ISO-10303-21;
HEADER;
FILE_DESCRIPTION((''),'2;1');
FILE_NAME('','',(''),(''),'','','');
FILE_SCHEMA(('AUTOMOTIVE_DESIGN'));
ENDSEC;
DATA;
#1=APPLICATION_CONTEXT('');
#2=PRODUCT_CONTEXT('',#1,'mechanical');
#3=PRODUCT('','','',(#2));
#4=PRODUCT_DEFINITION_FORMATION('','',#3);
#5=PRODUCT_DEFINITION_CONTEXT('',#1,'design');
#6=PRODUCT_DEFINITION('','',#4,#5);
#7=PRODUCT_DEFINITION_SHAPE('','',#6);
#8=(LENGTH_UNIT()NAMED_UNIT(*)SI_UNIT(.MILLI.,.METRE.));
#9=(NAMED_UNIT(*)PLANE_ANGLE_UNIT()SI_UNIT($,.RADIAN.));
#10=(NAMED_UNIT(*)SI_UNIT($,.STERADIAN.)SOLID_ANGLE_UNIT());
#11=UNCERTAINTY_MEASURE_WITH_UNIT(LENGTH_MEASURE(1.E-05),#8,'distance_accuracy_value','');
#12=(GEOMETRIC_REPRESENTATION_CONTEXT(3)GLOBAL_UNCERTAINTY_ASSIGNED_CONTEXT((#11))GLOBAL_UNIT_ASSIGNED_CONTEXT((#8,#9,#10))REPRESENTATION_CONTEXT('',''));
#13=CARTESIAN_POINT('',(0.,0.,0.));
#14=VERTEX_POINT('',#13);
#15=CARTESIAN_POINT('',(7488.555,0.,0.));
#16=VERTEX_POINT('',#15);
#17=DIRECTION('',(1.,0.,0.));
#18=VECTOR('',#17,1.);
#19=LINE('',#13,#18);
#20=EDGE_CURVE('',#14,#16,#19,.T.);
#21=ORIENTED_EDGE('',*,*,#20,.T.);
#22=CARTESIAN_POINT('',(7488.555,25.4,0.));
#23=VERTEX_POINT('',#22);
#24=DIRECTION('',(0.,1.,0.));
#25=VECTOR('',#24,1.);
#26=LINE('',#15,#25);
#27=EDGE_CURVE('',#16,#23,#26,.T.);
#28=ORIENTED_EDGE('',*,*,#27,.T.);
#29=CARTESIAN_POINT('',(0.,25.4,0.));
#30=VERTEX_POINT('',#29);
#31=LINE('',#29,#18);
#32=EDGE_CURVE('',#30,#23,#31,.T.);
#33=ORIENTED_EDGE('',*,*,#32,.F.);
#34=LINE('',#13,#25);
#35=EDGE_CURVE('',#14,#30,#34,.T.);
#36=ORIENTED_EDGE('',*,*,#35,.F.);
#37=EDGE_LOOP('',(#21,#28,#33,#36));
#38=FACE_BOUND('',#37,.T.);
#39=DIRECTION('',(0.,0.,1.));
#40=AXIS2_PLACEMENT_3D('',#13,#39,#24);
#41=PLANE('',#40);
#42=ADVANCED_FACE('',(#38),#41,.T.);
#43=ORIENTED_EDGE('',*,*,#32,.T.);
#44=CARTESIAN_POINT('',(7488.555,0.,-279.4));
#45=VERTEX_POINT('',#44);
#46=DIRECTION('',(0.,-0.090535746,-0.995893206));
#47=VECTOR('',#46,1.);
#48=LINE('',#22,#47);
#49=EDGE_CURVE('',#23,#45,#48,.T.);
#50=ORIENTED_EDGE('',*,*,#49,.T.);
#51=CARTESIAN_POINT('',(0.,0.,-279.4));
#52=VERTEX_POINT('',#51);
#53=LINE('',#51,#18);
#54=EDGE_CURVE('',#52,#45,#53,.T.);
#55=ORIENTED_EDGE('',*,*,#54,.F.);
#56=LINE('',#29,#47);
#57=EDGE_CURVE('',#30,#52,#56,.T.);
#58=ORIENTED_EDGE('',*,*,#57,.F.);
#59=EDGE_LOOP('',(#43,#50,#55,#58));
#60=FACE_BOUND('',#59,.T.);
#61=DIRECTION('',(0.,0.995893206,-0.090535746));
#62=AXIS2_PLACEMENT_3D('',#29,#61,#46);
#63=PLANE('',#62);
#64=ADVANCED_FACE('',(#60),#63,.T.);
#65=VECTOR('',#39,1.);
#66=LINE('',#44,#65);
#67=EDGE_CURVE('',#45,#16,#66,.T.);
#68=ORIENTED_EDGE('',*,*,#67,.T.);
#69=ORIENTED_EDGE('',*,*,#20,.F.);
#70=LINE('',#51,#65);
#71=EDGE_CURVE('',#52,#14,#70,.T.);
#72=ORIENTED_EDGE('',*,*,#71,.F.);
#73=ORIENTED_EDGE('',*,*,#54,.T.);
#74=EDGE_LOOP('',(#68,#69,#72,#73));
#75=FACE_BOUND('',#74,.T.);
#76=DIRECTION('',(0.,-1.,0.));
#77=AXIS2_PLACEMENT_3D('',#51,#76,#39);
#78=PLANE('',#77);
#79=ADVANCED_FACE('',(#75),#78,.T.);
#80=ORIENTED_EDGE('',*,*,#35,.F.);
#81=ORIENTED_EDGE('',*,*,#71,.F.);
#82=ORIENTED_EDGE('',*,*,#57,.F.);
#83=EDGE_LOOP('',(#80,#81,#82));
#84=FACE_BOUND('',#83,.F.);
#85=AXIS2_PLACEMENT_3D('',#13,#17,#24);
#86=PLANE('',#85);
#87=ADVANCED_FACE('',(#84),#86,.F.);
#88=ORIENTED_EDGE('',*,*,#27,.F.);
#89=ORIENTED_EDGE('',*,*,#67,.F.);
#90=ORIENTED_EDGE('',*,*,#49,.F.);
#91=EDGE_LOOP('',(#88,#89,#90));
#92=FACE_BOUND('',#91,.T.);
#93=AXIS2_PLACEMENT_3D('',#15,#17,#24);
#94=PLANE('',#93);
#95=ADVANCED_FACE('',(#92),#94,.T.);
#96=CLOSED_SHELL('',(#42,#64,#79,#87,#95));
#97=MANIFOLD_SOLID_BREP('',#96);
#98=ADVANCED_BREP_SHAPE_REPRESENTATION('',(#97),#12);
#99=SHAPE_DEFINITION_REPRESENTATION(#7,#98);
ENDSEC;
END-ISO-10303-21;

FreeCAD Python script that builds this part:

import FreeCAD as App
import Part
import Sketcher
from FreeCAD import Vector
Q = App.Units.Quantity


def add_polygon(sketch, points):
    """Adds a closed chain of lines whose ends are joined by coincident constraints."""
    first, n = sketch.GeometryCount, len(points)
    for a, b in zip(points, points[1:] + points[:1]):
        sketch.addGeometry(Part.LineSegment(App.Vector(*a, 0), App.Vector(*b, 0)), False)
    for i in range(n):
        sketch.addConstraint(Sketcher.Constraint("Coincident", first + i, 2, first + (i + 1) % n, 1))

doc = App.newDocument("Part")
body = doc.addObject("PartDesign::Body", "Body")

# Sketch on YZ plane
sketch1 = doc.addObject("Sketcher::SketchObject", "Sketch")
body.addObject(sketch1)
sketch1.AttachmentSupport = (doc.YZ_Plane, [""])
sketch1.MapMode = "FlatFace"
add_polygon(sketch1, [(25, 0), (0, 0), (0, -279)])  # lines 0-2
sketch1.addConstraint([
    Sketcher.Constraint("Horizontal", 0),
    Sketcher.Constraint("Vertical", 1),
    Sketcher.Constraint("Coincident", 0, 2, -1, 1),
    Sketcher.Constraint("DistanceX", 0, 2, 0, 1, Q("1 in")),
    Sketcher.Constraint("DistanceY", 1, 2, 1, 1, Q("11 in")),
])
pad1 = doc.addObject("PartDesign::Pad", "Pad")
body.addObject(pad1)
pad1.Profile = sketch1
pad1.Length = Q("294.825 in")

doc.recompute()
